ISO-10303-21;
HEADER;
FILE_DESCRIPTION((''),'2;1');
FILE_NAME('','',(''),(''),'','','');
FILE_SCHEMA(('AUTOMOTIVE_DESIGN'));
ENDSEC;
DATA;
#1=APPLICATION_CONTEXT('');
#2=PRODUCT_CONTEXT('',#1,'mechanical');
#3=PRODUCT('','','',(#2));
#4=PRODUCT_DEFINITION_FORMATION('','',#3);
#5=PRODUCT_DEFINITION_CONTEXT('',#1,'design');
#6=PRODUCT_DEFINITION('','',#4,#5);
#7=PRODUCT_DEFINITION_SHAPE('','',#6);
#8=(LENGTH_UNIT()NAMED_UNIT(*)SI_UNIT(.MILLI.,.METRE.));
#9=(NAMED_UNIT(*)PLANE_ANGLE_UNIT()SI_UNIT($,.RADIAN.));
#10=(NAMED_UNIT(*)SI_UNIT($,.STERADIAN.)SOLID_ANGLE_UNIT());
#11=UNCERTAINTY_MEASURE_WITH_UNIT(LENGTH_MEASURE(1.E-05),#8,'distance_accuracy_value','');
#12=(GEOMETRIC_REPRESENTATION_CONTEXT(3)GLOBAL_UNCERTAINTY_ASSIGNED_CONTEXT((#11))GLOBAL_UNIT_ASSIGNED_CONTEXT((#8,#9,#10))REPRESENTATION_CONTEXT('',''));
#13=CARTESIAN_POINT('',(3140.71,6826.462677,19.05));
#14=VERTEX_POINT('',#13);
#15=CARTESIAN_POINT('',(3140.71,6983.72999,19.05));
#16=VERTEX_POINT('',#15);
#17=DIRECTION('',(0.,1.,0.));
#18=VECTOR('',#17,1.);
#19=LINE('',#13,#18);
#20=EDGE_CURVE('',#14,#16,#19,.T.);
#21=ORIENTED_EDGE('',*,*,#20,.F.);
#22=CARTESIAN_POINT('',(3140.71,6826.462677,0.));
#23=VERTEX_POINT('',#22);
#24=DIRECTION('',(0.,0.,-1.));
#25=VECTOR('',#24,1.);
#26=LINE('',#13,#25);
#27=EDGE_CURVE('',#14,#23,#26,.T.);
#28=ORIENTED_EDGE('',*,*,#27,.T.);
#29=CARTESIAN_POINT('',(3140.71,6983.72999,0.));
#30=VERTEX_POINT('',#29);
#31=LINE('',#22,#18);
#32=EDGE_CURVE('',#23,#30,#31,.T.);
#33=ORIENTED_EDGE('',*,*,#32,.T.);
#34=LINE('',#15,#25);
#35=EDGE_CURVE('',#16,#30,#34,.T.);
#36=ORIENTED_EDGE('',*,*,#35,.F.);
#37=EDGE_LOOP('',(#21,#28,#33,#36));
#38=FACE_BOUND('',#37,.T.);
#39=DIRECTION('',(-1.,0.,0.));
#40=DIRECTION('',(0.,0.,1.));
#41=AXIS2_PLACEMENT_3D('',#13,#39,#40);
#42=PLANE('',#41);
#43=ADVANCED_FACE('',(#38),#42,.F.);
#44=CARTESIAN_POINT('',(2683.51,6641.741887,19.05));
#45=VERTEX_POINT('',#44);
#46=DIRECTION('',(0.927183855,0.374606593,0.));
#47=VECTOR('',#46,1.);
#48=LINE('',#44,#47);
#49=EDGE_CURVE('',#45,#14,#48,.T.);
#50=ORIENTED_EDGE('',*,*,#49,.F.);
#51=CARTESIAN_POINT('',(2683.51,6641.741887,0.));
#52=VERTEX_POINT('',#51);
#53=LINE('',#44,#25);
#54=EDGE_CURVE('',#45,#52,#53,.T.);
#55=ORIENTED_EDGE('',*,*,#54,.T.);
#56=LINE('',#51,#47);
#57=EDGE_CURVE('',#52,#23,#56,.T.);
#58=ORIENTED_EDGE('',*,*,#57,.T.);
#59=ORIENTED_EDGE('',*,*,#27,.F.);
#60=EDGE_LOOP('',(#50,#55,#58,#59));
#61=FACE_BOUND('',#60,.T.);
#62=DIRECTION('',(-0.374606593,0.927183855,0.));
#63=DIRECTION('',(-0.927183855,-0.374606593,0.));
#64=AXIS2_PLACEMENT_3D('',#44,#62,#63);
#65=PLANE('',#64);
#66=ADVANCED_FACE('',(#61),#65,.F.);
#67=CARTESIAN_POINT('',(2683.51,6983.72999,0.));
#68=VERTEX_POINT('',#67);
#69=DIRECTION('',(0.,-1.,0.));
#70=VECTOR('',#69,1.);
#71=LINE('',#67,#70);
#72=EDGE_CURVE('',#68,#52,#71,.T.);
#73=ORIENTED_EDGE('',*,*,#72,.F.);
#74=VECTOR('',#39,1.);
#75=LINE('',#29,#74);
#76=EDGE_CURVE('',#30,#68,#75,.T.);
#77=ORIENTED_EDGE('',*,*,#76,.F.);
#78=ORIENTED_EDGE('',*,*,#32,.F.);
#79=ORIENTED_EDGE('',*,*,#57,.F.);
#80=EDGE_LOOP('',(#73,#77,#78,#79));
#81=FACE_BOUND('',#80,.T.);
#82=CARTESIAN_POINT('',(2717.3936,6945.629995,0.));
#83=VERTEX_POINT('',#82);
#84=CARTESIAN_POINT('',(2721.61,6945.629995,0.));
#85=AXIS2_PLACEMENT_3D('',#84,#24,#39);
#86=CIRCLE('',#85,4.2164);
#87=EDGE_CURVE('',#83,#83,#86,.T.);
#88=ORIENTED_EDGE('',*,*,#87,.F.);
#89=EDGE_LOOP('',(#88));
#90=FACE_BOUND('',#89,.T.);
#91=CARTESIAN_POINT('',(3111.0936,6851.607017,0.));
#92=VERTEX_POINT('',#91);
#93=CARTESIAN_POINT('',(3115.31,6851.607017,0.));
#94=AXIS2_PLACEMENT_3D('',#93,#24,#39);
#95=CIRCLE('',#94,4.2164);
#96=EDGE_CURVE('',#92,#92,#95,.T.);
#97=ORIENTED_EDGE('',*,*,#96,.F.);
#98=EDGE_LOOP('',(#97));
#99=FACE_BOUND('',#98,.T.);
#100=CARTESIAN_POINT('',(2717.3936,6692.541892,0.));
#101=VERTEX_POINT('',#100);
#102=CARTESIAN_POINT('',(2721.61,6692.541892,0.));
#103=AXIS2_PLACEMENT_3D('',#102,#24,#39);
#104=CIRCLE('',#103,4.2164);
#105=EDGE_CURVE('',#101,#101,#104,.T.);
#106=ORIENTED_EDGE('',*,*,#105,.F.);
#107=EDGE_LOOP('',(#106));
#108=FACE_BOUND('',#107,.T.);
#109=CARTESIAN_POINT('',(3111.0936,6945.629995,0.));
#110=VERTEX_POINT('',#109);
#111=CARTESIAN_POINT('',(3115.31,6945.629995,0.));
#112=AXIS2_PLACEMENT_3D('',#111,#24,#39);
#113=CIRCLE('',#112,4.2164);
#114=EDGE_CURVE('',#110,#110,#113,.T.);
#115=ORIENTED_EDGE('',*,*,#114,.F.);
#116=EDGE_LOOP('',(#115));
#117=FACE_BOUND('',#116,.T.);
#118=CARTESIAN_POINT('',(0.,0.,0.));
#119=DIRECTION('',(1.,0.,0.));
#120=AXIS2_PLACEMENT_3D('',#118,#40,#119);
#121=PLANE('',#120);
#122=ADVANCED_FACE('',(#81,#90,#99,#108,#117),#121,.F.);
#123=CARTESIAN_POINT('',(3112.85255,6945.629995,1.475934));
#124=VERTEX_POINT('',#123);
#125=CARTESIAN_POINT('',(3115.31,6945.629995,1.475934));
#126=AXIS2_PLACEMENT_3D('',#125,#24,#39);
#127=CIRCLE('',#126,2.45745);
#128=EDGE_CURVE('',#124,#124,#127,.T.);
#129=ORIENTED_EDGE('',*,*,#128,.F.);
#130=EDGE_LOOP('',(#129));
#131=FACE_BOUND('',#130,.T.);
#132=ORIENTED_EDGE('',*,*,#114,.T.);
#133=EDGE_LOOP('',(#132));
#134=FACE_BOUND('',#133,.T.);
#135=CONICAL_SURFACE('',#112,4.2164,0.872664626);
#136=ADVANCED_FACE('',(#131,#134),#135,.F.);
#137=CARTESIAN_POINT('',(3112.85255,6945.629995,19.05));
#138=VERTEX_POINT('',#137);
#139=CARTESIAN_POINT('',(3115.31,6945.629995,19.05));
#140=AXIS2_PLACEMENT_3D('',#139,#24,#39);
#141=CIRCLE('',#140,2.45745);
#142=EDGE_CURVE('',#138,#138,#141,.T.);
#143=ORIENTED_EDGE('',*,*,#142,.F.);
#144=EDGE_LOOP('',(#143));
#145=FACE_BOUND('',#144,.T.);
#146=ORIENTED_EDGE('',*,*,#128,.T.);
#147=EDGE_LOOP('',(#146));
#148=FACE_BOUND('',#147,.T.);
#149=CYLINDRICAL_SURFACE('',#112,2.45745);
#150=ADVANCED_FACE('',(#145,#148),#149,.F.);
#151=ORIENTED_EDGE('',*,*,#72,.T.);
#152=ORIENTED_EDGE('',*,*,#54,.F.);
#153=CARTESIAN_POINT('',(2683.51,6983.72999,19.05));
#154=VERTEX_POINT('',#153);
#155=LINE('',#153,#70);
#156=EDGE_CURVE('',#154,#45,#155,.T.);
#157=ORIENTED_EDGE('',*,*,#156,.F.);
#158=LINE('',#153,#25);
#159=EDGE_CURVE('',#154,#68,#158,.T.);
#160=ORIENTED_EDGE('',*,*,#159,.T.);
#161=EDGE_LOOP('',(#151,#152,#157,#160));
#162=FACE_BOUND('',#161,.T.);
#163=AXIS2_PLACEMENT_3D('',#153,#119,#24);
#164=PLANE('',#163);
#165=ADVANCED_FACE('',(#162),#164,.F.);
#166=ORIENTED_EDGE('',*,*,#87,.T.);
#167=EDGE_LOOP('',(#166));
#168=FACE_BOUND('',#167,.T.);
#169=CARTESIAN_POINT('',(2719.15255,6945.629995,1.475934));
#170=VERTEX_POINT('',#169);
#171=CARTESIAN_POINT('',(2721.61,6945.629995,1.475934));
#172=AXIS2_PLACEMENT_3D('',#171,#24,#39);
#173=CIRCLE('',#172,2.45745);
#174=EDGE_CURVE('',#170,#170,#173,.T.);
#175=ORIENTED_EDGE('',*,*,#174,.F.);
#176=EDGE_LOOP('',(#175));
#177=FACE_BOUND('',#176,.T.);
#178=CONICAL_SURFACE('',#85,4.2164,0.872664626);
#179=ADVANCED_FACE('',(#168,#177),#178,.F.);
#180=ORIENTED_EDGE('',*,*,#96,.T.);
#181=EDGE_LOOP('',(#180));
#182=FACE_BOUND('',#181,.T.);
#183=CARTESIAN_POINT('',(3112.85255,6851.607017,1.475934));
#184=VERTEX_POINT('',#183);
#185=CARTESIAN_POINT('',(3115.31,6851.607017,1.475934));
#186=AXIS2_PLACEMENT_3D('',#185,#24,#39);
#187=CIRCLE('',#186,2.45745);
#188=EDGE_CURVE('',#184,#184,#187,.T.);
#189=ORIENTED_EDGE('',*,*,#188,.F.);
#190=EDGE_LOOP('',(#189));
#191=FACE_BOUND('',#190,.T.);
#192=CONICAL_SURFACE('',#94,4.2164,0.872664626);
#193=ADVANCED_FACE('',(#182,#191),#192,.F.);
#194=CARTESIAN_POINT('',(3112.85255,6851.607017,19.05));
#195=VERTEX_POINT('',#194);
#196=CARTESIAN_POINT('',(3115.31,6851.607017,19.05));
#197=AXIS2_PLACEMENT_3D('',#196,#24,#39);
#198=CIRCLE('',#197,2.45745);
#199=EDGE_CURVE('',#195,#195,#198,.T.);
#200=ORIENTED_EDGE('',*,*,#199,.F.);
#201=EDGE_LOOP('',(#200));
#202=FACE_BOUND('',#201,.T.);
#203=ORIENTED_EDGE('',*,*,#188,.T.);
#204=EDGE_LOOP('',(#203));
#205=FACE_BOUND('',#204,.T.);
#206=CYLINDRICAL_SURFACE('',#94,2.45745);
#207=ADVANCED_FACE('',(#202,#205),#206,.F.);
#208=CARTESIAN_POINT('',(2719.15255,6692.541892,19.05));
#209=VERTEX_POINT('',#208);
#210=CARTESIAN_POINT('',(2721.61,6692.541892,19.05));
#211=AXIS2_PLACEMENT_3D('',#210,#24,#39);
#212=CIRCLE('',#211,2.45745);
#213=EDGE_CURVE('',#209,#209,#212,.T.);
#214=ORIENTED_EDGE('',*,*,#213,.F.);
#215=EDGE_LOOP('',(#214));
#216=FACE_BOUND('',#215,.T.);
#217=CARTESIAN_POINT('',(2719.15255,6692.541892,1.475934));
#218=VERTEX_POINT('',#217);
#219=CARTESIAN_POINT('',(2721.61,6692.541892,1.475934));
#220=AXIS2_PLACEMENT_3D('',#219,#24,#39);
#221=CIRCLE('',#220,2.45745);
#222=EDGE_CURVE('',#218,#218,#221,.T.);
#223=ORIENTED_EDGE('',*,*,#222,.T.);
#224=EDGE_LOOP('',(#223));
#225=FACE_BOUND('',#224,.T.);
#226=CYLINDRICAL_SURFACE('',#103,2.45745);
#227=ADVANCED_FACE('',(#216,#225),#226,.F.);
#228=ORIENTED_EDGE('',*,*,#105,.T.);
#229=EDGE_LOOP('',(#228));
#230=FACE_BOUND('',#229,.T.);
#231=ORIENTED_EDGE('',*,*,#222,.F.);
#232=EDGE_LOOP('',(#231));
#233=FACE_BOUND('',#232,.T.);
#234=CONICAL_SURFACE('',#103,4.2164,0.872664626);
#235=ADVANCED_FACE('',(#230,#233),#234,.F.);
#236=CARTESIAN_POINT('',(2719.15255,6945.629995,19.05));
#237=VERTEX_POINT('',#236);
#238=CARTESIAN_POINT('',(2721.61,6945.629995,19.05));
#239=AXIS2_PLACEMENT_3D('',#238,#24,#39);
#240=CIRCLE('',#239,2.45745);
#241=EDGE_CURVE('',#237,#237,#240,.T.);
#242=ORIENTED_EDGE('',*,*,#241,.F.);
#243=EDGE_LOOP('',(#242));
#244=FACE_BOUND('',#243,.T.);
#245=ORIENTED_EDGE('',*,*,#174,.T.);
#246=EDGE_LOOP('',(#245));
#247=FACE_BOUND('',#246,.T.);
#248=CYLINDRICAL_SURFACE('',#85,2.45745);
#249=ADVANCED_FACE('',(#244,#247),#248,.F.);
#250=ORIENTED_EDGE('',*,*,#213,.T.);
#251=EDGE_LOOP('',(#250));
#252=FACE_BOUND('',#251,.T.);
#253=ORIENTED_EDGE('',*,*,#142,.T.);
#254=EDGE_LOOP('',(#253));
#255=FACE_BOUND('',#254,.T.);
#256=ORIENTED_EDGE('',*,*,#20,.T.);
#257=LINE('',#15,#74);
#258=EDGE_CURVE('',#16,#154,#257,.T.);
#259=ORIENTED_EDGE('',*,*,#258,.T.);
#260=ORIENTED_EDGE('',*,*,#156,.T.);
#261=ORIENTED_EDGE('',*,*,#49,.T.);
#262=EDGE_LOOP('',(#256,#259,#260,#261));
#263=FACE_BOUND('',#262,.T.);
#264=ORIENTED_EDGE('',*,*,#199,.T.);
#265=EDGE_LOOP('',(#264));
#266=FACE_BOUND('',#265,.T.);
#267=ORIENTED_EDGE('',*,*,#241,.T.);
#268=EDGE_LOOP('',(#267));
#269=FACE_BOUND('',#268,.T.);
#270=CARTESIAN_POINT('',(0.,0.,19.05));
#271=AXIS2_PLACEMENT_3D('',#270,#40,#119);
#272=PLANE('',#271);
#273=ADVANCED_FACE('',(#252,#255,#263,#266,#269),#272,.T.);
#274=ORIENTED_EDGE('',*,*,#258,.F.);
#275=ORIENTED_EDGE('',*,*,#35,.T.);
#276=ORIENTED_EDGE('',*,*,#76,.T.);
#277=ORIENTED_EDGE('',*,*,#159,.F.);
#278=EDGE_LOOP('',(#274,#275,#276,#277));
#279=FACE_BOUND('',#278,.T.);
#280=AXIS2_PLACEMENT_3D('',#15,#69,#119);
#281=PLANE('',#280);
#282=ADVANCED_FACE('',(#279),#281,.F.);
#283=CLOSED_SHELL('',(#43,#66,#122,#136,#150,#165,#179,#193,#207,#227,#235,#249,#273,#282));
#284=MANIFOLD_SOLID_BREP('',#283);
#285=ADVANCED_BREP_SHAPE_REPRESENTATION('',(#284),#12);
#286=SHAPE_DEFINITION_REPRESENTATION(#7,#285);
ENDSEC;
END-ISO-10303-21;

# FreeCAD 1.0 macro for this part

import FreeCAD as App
import Part
import Sketcher
Q = App.Units.Quantity

doc = App.newDocument("Part")
params = doc.addObject("Spreadsheet::Sheet", "Params")
for row, (alias, value) in enumerate([
    ("sketch1_width", "18 in"),
    ("pad1_length", "0.75 in"),
    ("hole_diameter", "0.1935 in"),
    ("hole_csink_diameter", "0.332 in"),
], start=1):
    params.set(f"A{row}", alias)
    params.set(f"B{row}", "=" + value)
    params.setAlias(f"B{row}", alias)

body = doc.addObject("PartDesign::Body", "Body")

# Sketch on XY plane
sketch1 = body.newObject("Sketcher::SketchObject", "Sketch")
sketch1.AttachmentSupport = (doc.getObject("XY_Plane"), [""])
sketch1.MapMode = "FlatFace"
sketch1.addGeometry([
    Part.LineSegment(App.Vector(2684, 6984, 0), App.Vector(2684, 6642, 0)),
    Part.LineSegment(App.Vector(2684, 6642, 0), App.Vector(3141, 6826, 0)),
    Part.LineSegment(App.Vector(3141, 6826, 0), App.Vector(3141, 6984, 0)),
    Part.LineSegment(App.Vector(3141, 6984, 0), App.Vector(2684, 6984, 0)),
], False)
sketch1.addConstraint([
    Sketcher.Constraint("Coincident", 0, 2, 1, 1),
    Sketcher.Constraint("Coincident", 1, 2, 2, 1),
    Sketcher.Constraint("Coincident", 2, 2, 3, 1),
    Sketcher.Constraint("Coincident", 3, 2, 0, 1),
    Sketcher.Constraint("Vertical", 0),
    Sketcher.Constraint("Vertical", 2),
    Sketcher.Constraint("Horizontal", 3),
    Sketcher.Constraint("DistanceX", 3, 2, 3, 1, Q("18 in")),
    Sketcher.Constraint("Angle", 1, Q("22 deg")),
    Sketcher.Constraint("DistanceX", -1, 1, 0, 2, Q("105.65 in")),
    Sketcher.Constraint("DistanceY", 0, 2, 0, 1, Q("341.988103 mm")),
    Sketcher.Constraint("DistanceY", -1, 1, 2, 2, Q("6983.72999 mm")),
])
sketch1.setExpression("Constraints[7]", "Params.sketch1_width")
pad1 = body.newObject("PartDesign::Pad", "Pad")
pad1.Profile = sketch1
pad1.setExpression("Length", "Params.pad1_length")

# Sketch on XY plane
sketch2 = body.newObject("Sketcher::SketchObject", "Sketch001")
sketch2.AttachmentSupport = (doc.getObject("XY_Plane"), [""])
sketch2.MapMode = "FlatFace"
sketch2.addGeometry([
    Part.Circle(App.Vector(2721.6, 6692.5, 0), App.Vector(0, 0, 1), 2.5),
    Part.Circle(App.Vector(2721.6, 6945.6, 0), App.Vector(0, 0, 1), 2.5),
    Part.Circle(App.Vector(3115.3, 6945.6, 0), App.Vector(0, 0, 1), 2.5),
    Part.Circle(App.Vector(3115.3, 6851.6, 0), App.Vector(0, 0, 1), 2.5),
], False)
sketch2.addConstraint([
    Sketcher.Constraint("Equal", 0, 1),
    Sketcher.Constraint("Equal", 1, 2),
    Sketcher.Constraint("Equal", 2, 3),
    Sketcher.Constraint("Horizontal", 1, 3, 2, 3),
    Sketcher.Constraint("Vertical", 0, 3, 1, 3),
    Sketcher.Constraint("Vertical", 2, 3, 3, 3),
    Sketcher.Constraint("Diameter", 0, Q("0.1935 in")),
    Sketcher.Constraint("DistanceX", 1, 3, 2, 3, Q("15.5 in")),
    Sketcher.Constraint("DistanceX", -1, 1, 0, 3, Q("107.15 in")),
    Sketcher.Constraint("DistanceY", -1, 1, 1, 3, Q("273.4499998 in")),
    Sketcher.Constraint("DistanceY", -1, 1, 0, 3, Q("6692.541892 mm")),
    Sketcher.Constraint("DistanceY", 3, 3, 2, 3, Q("94.022978 mm")),
])
doc.recompute()
hole = body.newObject("PartDesign::Hole", "Hole")
hole.Profile = sketch2
hole.ThreadType = "None"
hole.setExpression("Diameter", "Params.hole_diameter")
hole.DepthType = "ThroughAll"
hole.HoleCutType = "Countersink"
hole.setExpression("HoleCutDiameter", "Params.hole_csink_diameter")
hole.HoleCutCountersinkAngle = 100
hole.Reversed = True

doc.recompute()
